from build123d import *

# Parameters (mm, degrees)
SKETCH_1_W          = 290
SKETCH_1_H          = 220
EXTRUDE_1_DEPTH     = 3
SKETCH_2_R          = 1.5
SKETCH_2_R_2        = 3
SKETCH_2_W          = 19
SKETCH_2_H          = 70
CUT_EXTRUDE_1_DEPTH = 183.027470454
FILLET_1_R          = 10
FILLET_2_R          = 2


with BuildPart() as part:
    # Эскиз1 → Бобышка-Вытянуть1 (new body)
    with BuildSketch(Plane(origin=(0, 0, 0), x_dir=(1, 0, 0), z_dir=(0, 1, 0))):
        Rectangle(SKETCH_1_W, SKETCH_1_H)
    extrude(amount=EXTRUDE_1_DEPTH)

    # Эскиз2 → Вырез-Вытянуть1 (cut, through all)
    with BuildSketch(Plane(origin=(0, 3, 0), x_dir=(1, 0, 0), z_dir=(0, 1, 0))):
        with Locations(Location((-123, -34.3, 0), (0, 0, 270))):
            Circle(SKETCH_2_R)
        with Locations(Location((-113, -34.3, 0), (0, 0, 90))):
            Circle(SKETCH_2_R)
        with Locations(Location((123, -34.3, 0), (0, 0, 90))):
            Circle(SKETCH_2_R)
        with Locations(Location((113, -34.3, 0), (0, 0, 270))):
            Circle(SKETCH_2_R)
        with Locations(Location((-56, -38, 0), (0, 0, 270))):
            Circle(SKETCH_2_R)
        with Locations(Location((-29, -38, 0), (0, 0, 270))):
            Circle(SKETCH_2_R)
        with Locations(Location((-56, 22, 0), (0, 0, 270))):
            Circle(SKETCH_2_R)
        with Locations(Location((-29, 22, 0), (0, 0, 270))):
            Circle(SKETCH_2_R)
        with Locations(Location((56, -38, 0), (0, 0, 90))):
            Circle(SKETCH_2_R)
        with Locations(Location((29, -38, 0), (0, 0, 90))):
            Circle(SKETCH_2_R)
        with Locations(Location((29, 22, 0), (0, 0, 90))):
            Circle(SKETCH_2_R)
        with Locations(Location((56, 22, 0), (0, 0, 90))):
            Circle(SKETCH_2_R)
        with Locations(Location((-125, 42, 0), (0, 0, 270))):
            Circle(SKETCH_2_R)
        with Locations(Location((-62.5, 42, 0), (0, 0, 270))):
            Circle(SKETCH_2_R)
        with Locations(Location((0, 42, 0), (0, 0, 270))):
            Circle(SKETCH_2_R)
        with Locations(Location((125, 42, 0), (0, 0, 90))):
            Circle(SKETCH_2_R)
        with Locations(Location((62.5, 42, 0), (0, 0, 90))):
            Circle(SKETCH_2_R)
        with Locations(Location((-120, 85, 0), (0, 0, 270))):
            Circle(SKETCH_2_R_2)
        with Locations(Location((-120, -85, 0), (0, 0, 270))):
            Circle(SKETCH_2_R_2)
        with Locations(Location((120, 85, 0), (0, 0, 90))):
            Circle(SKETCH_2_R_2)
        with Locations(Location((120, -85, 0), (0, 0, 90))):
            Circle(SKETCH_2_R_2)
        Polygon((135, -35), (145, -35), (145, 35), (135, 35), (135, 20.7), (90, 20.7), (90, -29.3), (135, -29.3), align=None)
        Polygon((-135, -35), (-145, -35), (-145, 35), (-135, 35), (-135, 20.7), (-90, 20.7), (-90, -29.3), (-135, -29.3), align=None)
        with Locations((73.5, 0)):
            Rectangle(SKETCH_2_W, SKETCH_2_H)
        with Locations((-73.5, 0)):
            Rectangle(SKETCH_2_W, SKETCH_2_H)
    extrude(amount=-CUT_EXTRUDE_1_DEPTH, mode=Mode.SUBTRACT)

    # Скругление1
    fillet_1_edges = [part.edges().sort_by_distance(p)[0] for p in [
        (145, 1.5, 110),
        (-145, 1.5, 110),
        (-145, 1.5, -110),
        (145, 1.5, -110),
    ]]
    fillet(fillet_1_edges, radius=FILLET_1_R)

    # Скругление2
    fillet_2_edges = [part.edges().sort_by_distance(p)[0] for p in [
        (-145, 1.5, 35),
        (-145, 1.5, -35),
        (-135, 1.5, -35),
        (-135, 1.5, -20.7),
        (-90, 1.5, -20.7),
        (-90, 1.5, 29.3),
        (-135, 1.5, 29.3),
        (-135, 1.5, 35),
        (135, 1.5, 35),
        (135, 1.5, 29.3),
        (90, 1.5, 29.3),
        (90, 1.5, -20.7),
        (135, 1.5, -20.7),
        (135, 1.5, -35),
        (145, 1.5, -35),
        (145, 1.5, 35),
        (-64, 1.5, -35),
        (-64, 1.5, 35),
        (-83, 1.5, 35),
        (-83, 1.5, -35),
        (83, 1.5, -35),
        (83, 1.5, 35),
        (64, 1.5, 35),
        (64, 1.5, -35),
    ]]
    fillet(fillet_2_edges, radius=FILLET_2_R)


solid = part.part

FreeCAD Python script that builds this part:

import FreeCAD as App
import Part
import Sketcher

V = App.Vector


def edges_at(feature, points):
    """Names of the edges that pass closest to the given points."""
    edges = feature.Shape.Edges
    near = lambda p: min(range(len(edges)), key=lambda i: edges[i].distToShape(Part.Vertex(*p))[0])
    return sorted({f"Edge{near(p) + 1}" for p in points})

doc = App.newDocument("Part")
body = doc.addObject("PartDesign::Body", "Body")

# Sketch on XZ plane
sketch1 = doc.addObject("Sketcher::SketchObject", "Sketch")
body.addObject(sketch1)
sketch1.AttachmentSupport = (doc.XZ_Plane, [""])
sketch1.MapMode = "FlatFace"
sketch1.addGeometry([
    Part.LineSegment(V(-145, -110, 0), V(-145, 110, 0)),
    Part.LineSegment(V(-145, 110, 0), V(145, 110, 0)),
    Part.LineSegment(V(145, 110, 0), V(145, -110, 0)),
    Part.LineSegment(V(145, -110, 0), V(-145, -110, 0)),
], False)
sketch1.addConstraint([
    Sketcher.Constraint("Coincident", 0, 2, 1, 1),
    Sketcher.Constraint("Coincident", 1, 2, 2, 1),
    Sketcher.Constraint("Coincident", 2, 2, 3, 1),
    Sketcher.Constraint("Coincident", 3, 2, 0, 1),
    Sketcher.Constraint("Vertical", 0),
    Sketcher.Constraint("Horizontal", 1),
    Sketcher.Constraint("Vertical", 2),
    Sketcher.Constraint("Horizontal", 3),
    Sketcher.Constraint("Symmetric", 0, 2, 2, 2, -1, 1),
    Sketcher.Constraint("DistanceX", 1, 1, 1, 2, 290.0),
    Sketcher.Constraint("DistanceY", 0, 1, 0, 2, 220.0),
])
pad1 = doc.addObject("PartDesign::Pad", "Pad")
body.addObject(pad1)
pad1.Profile = sketch1
pad1.Length = 3
pad1.Reversed = True

# Sketch on XZ plane
sketch2 = doc.addObject("Sketcher::SketchObject", "Sketch001")
body.addObject(sketch2)
sketch2.AttachmentSupport = (doc.XZ_Plane, [""])
sketch2.MapMode = "FlatFace"
sketch2.AttachmentOffset = App.Placement(V(0, 0, -3), App.Rotation())
sketch2.addGeometry([
    Part.Circle(V(-123, 34.3, 0), V(0, 0, 1), 1.5),  # 0
    Part.Circle(V(-113, 34.3, 0), V(0, 0, 1), 1.5),  # 1
    Part.Circle(V(123, 34.3, 0), V(0, 0, 1), 1.5),  # 2
    Part.Circle(V(113, 34.3, 0), V(0, 0, 1), 1.5),  # 3
    Part.Circle(V(-56, 38, 0), V(0, 0, 1), 1.5),  # 4
    Part.Circle(V(-29, 38, 0), V(0, 0, 1), 1.5),  # 5
    Part.Circle(V(-56, -22, 0), V(0, 0, 1), 1.5),  # 6
    Part.Circle(V(-29, -22, 0), V(0, 0, 1), 1.5),  # 7
    Part.Circle(V(56, 38, 0), V(0, 0, 1), 1.5),  # 8
    Part.Circle(V(29, 38, 0), V(0, 0, 1), 1.5),  # 9
    Part.Circle(V(29, -22, 0), V(0, 0, 1), 1.5),  # 10
    Part.Circle(V(56, -22, 0), V(0, 0, 1), 1.5),  # 11
    Part.Circle(V(-125, -42, 0), V(0, 0, 1), 1.5),  # 12
    Part.Circle(V(-62.5, -42, 0), V(0, 0, 1), 1.5),  # 13
    Part.Circle(V(0, -42, 0), V(0, 0, 1), 1.5),  # 14
    Part.Circle(V(125, -42, 0), V(0, 0, 1), 1.5),  # 15
    Part.Circle(V(62.5, -42, 0), V(0, 0, 1), 1.5),  # 16
    Part.Circle(V(-120, -85, 0), V(0, 0, 1), 3),  # 17
    Part.Circle(V(-120, 85, 0), V(0, 0, 1), 3),  # 18
    Part.Circle(V(120, -85, 0), V(0, 0, 1), 3),  # 19
    Part.Circle(V(120, 85, 0), V(0, 0, 1), 3),  # 20
    Part.LineSegment(V(135, 35, 0), V(145, 35, 0)),  # 21
    Part.LineSegment(V(145, 35, 0), V(145, -35, 0)),  # 22
    Part.LineSegment(V(145, -35, 0), V(135, -35, 0)),  # 23
    Part.LineSegment(V(135, -35, 0), V(135, -20.7, 0)),  # 24
    Part.LineSegment(V(135, -20.7, 0), V(90, -20.7, 0)),  # 25
    Part.LineSegment(V(90, -20.7, 0), V(90, 29.3, 0)),  # 26
    Part.LineSegment(V(90, 29.3, 0), V(135, 29.3, 0)),  # 27
    Part.LineSegment(V(135, 29.3, 0), V(135, 35, 0)),  # 28
    Part.LineSegment(V(-145, 35, 0), V(-135, 35, 0)),  # 29
    Part.LineSegment(V(-135, 35, 0), V(-135, 29.3, 0)),  # 30
    Part.LineSegment(V(-135, 29.3, 0), V(-90, 29.3, 0)),  # 31
    Part.LineSegment(V(-90, 29.3, 0), V(-90, -20.7, 0)),  # 32
    Part.LineSegment(V(-90, -20.7, 0), V(-135, -20.7, 0)),  # 33
    Part.LineSegment(V(-135, -20.7, 0), V(-135, -35, 0)),  # 34
    Part.LineSegment(V(-135, -35, 0), V(-145, -35, 0)),  # 35
    Part.LineSegment(V(-145, -35, 0), V(-145, 35, 0)),  # 36
    Part.LineSegment(V(64, -35, 0), V(64, 35, 0)),  # 37
    Part.LineSegment(V(64, 35, 0), V(83, 35, 0)),  # 38
    Part.LineSegment(V(83, 35, 0), V(83, -35, 0)),  # 39
    Part.LineSegment(V(83, -35, 0), V(64, -35, 0)),  # 40
    Part.LineSegment(V(-83, -35, 0), V(-83, 35, 0)),  # 41
    Part.LineSegment(V(-83, 35, 0), V(-64, 35, 0)),  # 42
    Part.LineSegment(V(-64, 35, 0), V(-64, -35, 0)),  # 43
    Part.LineSegment(V(-64, -35, 0), V(-83, -35, 0)),  # 44
], False)
sketch2.addConstraint([
    Sketcher.Constraint("Coincident", 21, 2, 22, 1),
    Sketcher.Constraint("Coincident", 22, 2, 23, 1),
    Sketcher.Constraint("Coincident", 23, 2, 24, 1),
    Sketcher.Constraint("Coincident", 24, 2, 25, 1),
    Sketcher.Constraint("Coincident", 25, 2, 26, 1),
    Sketcher.Constraint("Coincident", 26, 2, 27, 1),
    Sketcher.Constraint("Coincident", 27, 2, 28, 1),
    Sketcher.Constraint("Coincident", 28, 2, 21, 1),
    Sketcher.Constraint("Coincident", 29, 2, 30, 1),
    Sketcher.Constraint("Coincident", 30, 2, 31, 1),
    Sketcher.Constraint("Coincident", 31, 2, 32, 1),
    Sketcher.Constraint("Coincident", 32, 2, 33, 1),
    Sketcher.Constraint("Coincident", 33, 2, 34, 1),
    Sketcher.Constraint("Coincident", 34, 2, 35, 1),
    Sketcher.Constraint("Coincident", 35, 2, 36, 1),
    Sketcher.Constraint("Coincident", 36, 2, 29, 1),
    Sketcher.Constraint("Coincident", 37, 2, 38, 1),
    Sketcher.Constraint("Coincident", 38, 2, 39, 1),
    Sketcher.Constraint("Coincident", 39, 2, 40, 1),
    Sketcher.Constraint("Coincident", 40, 2, 37, 1),
    Sketcher.Constraint("Coincident", 41, 2, 42, 1),
    Sketcher.Constraint("Coincident", 42, 2, 43, 1),
    Sketcher.Constraint("Coincident", 43, 2, 44, 1),
    Sketcher.Constraint("Coincident", 44, 2, 41, 1),
    Sketcher.Constraint("Horizontal", 21),
    Sketcher.Constraint("Vertical", 22),
    Sketcher.Constraint("Horizontal", 23),
    Sketcher.Constraint("Vertical", 24),
    Sketcher.Constraint("Horizontal", 25),
    Sketcher.Constraint("Vertical", 26),
    Sketcher.Constraint("Horizontal", 27),
    Sketcher.Constraint("Vertical", 28),
    Sketcher.Constraint("Horizontal", 29),
    Sketcher.Constraint("Vertical", 30),
    Sketcher.Constraint("Horizontal", 31),
    Sketcher.Constraint("Vertical", 32),
    Sketcher.Constraint("Horizontal", 33),
    Sketcher.Constraint("Vertical", 34),
    Sketcher.Constraint("Horizontal", 35),
    Sketcher.Constraint("Vertical", 36),
    Sketcher.Constraint("Vertical", 37),
    Sketcher.Constraint("Horizontal", 38),
    Sketcher.Constraint("Vertical", 39),
    Sketcher.Constraint("Horizontal", 40),
    Sketcher.Constraint("Vertical", 41),
    Sketcher.Constraint("Horizontal", 42),
    Sketcher.Constraint("Vertical", 43),
    Sketcher.Constraint("Horizontal", 44),
    Sketcher.Constraint("Equal", 0, 1),
    Sketcher.Constraint("Equal", 1, 2),
    Sketcher.Constraint("Equal", 2, 3),
    Sketcher.Constraint("Equal", 3, 4),
    Sketcher.Constraint("Equal", 4, 5),
    Sketcher.Constraint("Equal", 5, 6),
    Sketcher.Constraint("Equal", 6, 7),
    Sketcher.Constraint("Equal", 7, 8),
    Sketcher.Constraint("Equal", 8, 9),
    Sketcher.Constraint("Equal", 9, 10),
    Sketcher.Constraint("Equal", 10, 11),
    Sketcher.Constraint("Equal", 11, 12),
    Sketcher.Constraint("Equal", 12, 13),
    Sketcher.Constraint("Equal", 13, 14),
    Sketcher.Constraint("Equal", 14, 15),
    Sketcher.Constraint("Equal", 15, 16),
    Sketcher.Constraint("Equal", 17, 18),
    Sketcher.Constraint("Equal", 18, 19),
    Sketcher.Constraint("Equal", 19, 20),
    Sketcher.Constraint("Symmetric", 18, 3, 19, 3, -1, 1),
    Sketcher.Constraint("Symmetric", 17, 3, 20, 3, -1, 1),
    Sketcher.Constraint("Symmetric", 23, 2, 29, 2, -1, 1),
    Sketcher.Constraint("Symmetric", 28, 2, 34, 2, -1, 1),
    Sketcher.Constraint("Symmetric", 39, 2, 41, 2, -1, 1),
    Sketcher.Constraint("Symmetric", 37, 2, 43, 2, -1, 1),
    Sketcher.Constraint("Symmetric", 0, 3, 2, 3, -2),
    Sketcher.Constraint("Symmetric", 1, 3, 3, 3, -2),
    Sketcher.Constraint("Symmetric", 4, 3, 8, 3, -2),
    Sketcher.Constraint("Symmetric", 5, 3, 9, 3, -2),
    Sketcher.Constraint("Symmetric", 7, 3, 10, 3, -2),
    Sketcher.Constraint("Symmetric", 6, 3, 11, 3, -2),
    Sketcher.Constraint("Symmetric", 12, 3, 15, 3, -2),
    Sketcher.Constraint("Symmetric", 13, 3, 16, 3, -2),
    Sketcher.Constraint("Symmetric", 17, 3, 19, 3, -2),
    Sketcher.Constraint("Symmetric", 28, 2, 29, 2, -2),
    Sketcher.Constraint("Symmetric", 26, 2, 31, 2, -2),
    Sketcher.Constraint("PointOnObject", 14, 3, -2),
    Sketcher.Constraint("Horizontal", 0, 3, 1, 3),
    Sketcher.Constraint("Horizontal", 4, 3, 5, 3),
    Sketcher.Constraint("Horizontal", 6, 3, 7, 3),
    Sketcher.Constraint("Horizontal", 12, 3, 13, 3),
    Sketcher.Constraint("Horizontal", 13, 3, 14, 3),
    Sketcher.Constraint("Horizontal", 25, 2, 32, 2),
    Sketcher.Constraint("Horizontal", 36, 2, 37, 2),
    Sketcher.Constraint("Horizontal", 35, 2, 39, 2),
    Sketcher.Constraint("Vertical", 4, 3, 6, 3),
    Sketcher.Constraint("Vertical", 5, 3, 7, 3),
    Sketcher.Constraint("Equal", 23, 29),
    Sketcher.Constraint("Diameter", 0, 3.0),
    Sketcher.Constraint("Diameter", 17, 6.0),
    Sketcher.Constraint("DistanceX", 21, 1, 21, 2, 10.0),
    Sketcher.Constraint("DistanceX", 25, 2, 25, 1, 45.0),
    Sketcher.Constraint("DistanceX", 38, 1, 38, 2, 19.0),
    Sketcher.Constraint("DistanceY", 22, 2, 22, 1, 70.0),
    Sketcher.Constraint("DistanceY", 26, 1, 26, 2, 50.0),
    Sketcher.Constraint("DistanceY", 24, 1, 24, 2, 14.3),
    Sketcher.Constraint("DistanceX", 0, 3, -1, 1, 123.0),
    Sketcher.Constraint("DistanceX", 1, 3, -1, 1, 113.0),
    Sketcher.Constraint("DistanceX", 4, 3, -1, 1, 56.0),
    Sketcher.Constraint("DistanceY", -1, 1, 4, 3, 38.0),
    Sketcher.Constraint("DistanceX", 5, 3, -1, 1, 29.0),
    Sketcher.Constraint("DistanceY", 6, 3, -1, 1, 22.0),
    Sketcher.Constraint("DistanceX", 12, 3, -1, 1, 125.0),
    Sketcher.Constraint("DistanceY", 12, 3, -1, 1, 42.0),
    Sketcher.Constraint("DistanceX", 17, 3, -1, 1, 120.0),
    Sketcher.Constraint("DistanceY", 17, 3, -1, 1, 85.0),
    Sketcher.Constraint("DistanceX", -1, 1, 21, 2, 145.0),
    Sketcher.Constraint("DistanceX", -1, 1, 37, 2, 64.0),
    Sketcher.Constraint("DistanceY", 24, 2, 2, 3, 55.0),
    Sketcher.Constraint("DistanceX", 13, 3, -1, 1, 62.5),
])
pocket1 = doc.addObject("PartDesign::Pocket", "Pocket")
body.addObject(pocket1)
pocket1.Profile = sketch2
pocket1.Type = "ThroughAll"
pocket1.Reversed = True
doc.recompute()

fillet = doc.addObject("PartDesign::Fillet", "Fillet")
body.addObject(fillet)
fillet.Base = (pocket1, edges_at(pocket1, [
    (145, 1.5, 110),
    (-145, 1.5, 110),
    (-145, 1.5, -110),
    (145, 1.5, -110),
]))
fillet.Radius = 10
doc.recompute()

fillet2 = doc.addObject("PartDesign::Fillet", "Fillet001")
body.addObject(fillet2)
fillet2.Base = (fillet, edges_at(fillet, [
    (-145, 1.5, 35),
    (-145, 1.5, -35),
    (-135, 1.5, -35),
    (-135, 1.5, -20.7),
    (-90, 1.5, -20.7),
    (-90, 1.5, 29.3),
    (-135, 1.5, 29.3),
    (-135, 1.5, 35),
    (135, 1.5, 35),
    (135, 1.5, 29.3),
    (90, 1.5, 29.3),
    (90, 1.5, -20.7),
    (135, 1.5, -20.7),
    (135, 1.5, -35),
    (145, 1.5, -35),
    (145, 1.5, 35),
    (-64, 1.5, -35),
    (-64, 1.5, 35),
    (-83, 1.5, 35),
    (-83, 1.5, -35),
    (83, 1.5, -35),
    (83, 1.5, 35),
    (64, 1.5, 35),
    (64, 1.5, -35),
]))
fillet2.Radius = 2

doc.recompute()
